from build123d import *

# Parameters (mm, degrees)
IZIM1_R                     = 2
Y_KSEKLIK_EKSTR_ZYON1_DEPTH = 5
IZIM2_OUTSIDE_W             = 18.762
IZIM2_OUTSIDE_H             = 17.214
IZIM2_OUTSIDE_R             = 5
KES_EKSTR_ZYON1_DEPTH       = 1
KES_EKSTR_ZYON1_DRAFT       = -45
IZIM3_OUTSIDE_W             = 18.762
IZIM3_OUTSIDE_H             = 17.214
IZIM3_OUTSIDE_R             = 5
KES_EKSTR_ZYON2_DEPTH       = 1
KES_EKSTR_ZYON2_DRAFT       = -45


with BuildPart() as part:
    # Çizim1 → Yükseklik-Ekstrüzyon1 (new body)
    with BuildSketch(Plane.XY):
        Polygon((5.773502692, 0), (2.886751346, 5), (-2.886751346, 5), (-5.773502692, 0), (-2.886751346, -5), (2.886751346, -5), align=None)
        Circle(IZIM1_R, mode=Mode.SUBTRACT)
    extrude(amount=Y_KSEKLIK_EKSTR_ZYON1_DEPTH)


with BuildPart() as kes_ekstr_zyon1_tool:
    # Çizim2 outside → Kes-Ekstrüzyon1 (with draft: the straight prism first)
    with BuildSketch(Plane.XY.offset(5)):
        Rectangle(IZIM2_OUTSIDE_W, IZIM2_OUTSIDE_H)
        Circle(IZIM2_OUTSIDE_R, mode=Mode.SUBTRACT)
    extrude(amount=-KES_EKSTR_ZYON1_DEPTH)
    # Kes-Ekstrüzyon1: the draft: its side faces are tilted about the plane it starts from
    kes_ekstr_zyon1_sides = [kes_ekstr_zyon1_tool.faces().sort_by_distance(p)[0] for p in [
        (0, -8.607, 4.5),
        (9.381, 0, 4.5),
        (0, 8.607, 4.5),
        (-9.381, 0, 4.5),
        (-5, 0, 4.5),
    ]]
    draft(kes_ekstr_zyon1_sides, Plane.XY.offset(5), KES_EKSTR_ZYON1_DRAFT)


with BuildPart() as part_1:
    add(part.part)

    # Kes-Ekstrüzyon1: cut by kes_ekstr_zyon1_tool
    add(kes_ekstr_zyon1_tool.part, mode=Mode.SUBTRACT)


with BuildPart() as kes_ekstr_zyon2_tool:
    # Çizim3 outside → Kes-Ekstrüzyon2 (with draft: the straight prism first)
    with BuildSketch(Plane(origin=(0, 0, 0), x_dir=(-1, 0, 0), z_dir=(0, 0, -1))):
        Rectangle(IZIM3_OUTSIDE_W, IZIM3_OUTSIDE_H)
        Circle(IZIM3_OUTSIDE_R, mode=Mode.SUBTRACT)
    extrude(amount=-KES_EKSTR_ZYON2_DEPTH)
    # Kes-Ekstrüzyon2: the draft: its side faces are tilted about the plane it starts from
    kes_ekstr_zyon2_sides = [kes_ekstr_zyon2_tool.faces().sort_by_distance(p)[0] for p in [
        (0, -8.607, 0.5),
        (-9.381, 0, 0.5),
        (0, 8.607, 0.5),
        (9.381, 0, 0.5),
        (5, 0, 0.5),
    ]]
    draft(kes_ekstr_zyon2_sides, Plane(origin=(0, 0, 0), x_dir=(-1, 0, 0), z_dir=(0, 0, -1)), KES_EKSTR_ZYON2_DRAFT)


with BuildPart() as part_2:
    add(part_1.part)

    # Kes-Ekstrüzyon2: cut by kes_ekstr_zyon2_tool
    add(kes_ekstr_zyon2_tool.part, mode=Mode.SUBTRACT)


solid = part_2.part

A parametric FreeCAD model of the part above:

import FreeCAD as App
import Part
import Sketcher

V = App.Vector
Q = App.Units.Quantity


def faces_at(feature, points):
    """Names of the faces that lie closest to the given points."""
    faces = feature.Shape.Faces
    near = lambda p: min(range(len(faces)), key=lambda i: faces[i].distToShape(Part.Vertex(*p))[0])
    return sorted({f"Face{near(p) + 1}" for p in points})

doc = App.newDocument("Part")
params = doc.addObject("Spreadsheet::Sheet", "Params")
for row, (alias, value) in enumerate([
    ("sketch1_diameter", "4 mm"),
    ("pad1_length", "5 mm"),
    ("sketch2_diameter", "10 mm"),
    ("pad2_length", "1 mm"),
    ("draft_angle", "45 deg"),
    ("sketch3_diameter", "10 mm"),
    ("pad3_length", "1 mm"),
    ("draft2_angle", "45 deg"),
], start=1):
    params.set(f"A{row}", alias)
    params.set(f"B{row}", "=" + value)
    params.setAlias(f"B{row}", alias)

body = doc.addObject("PartDesign::Body", "Body")

# Sketch on XY plane
sketch1 = body.newObject("Sketcher::SketchObject", "Sketch")
sketch1.AttachmentSupport = (doc.getObject("XY_Plane"), [""])
sketch1.MapMode = "FlatFace"
sketch1.addGeometry([
    Part.LineSegment(V(5.8, 0, 0), V(2.9, 5, 0)),  # 0
    Part.LineSegment(V(2.9, 5, 0), V(-2.9, 5, 0)),  # 1
    Part.LineSegment(V(-2.9, 5, 0), V(-5.8, 0, 0)),  # 2
    Part.LineSegment(V(-5.8, 0, 0), V(-2.9, -5, 0)),  # 3
    Part.LineSegment(V(-2.9, -5, 0), V(2.9, -5, 0)),  # 4
    Part.LineSegment(V(2.9, -5, 0), V(5.8, 0, 0)),  # 5
    Part.Circle(V(0, 0, 0), V(0, 0, 1), 2),  # 6
], False)
sketch1.addConstraint([
    Sketcher.Constraint("Coincident", 0, 2, 1, 1),
    Sketcher.Constraint("Coincident", 1, 2, 2, 1),
    Sketcher.Constraint("Coincident", 2, 2, 3, 1),
    Sketcher.Constraint("Coincident", 3, 2, 4, 1),
    Sketcher.Constraint("Coincident", 4, 2, 5, 1),
    Sketcher.Constraint("Coincident", 5, 2, 0, 1),
    Sketcher.Constraint("Horizontal", 1),
    Sketcher.Constraint("Horizontal", 4),
    Sketcher.Constraint("Coincident", 6, 3, -1, 1),
    Sketcher.Constraint("Symmetric", 0, 2, 3, 2, -1, 1),
    Sketcher.Constraint("Symmetric", 2, 2, 5, 2, -1, 1),
    Sketcher.Constraint("PointOnObject", 2, 2, -1),
    Sketcher.Constraint("Parallel", 2, 5),
    Sketcher.Constraint("Vertical", 1, 2, 3, 2),
    Sketcher.Constraint("Diameter", 6, Q("4 mm")),
    Sketcher.Constraint("Angle", 0, Q("120 deg")),
    Sketcher.Constraint("DistanceY", -1, 1, 0, 2, Q("5 mm")),
    Sketcher.Constraint("DistanceX", 1, 2, 1, 1, Q("5.773503 mm")),
])
sketch1.setExpression("Constraints[14]", "Params.sketch1_diameter")
pad1 = body.newObject("PartDesign::Pad", "Pad")
pad1.Profile = sketch1
pad1.setExpression("Length", "Params.pad1_length")
body2 = doc.addObject("PartDesign::Body", "Body001")

# Sketch on XY plane
sketch2 = body2.newObject("Sketcher::SketchObject", "Sketch001")
sketch2.AttachmentSupport = (doc.getObject("XY_Plane001"), [""])
sketch2.MapMode = "FlatFace"
sketch2.AttachmentOffset = App.Placement(V(0, 0, 5), App.Rotation())
sketch2.addGeometry([
    Part.LineSegment(V(-9, 9, 0), V(-9, -9, 0)),  # 0
    Part.LineSegment(V(-9, -9, 0), V(9, -9, 0)),  # 1
    Part.LineSegment(V(9, -9, 0), V(9, 9, 0)),  # 2
    Part.LineSegment(V(9, 9, 0), V(-9, 9, 0)),  # 3
    Part.Circle(V(0, 0, 0), V(0, 0, 1), 5),  # 4
], False)
sketch2.addConstraint([
    Sketcher.Constraint("Coincident", 0, 2, 1, 1),
    Sketcher.Constraint("Coincident", 1, 2, 2, 1),
    Sketcher.Constraint("Coincident", 2, 2, 3, 1),
    Sketcher.Constraint("Coincident", 3, 2, 0, 1),
    Sketcher.Constraint("Vertical", 0),
    Sketcher.Constraint("Horizontal", 1),
    Sketcher.Constraint("Vertical", 2),
    Sketcher.Constraint("Horizontal", 3),
    Sketcher.Constraint("Coincident", 4, 3, -1, 1),
    Sketcher.Constraint("Symmetric", 0, 2, 2, 2, -1, 1),
    Sketcher.Constraint("Diameter", 4, Q("10 mm")),
    Sketcher.Constraint("DistanceX", 1, 1, 1, 2, Q("18.762 mm")),
    Sketcher.Constraint("DistanceY", 0, 2, 0, 1, Q("17.214 mm")),
])
sketch2.setExpression("Constraints[10]", "Params.sketch2_diameter")
pad2 = body2.newObject("PartDesign::Pad", "Pad001")
pad2.Profile = sketch2
pad2.setExpression("Length", "Params.pad2_length")
pad2.Reversed = True
doc.recompute()

datumplane = body2.newObject("PartDesign::Plane", "DatumPlane")
datumplane.AttachmentSupport = (doc.getObject("XY_Plane001"), [""])
datumplane.MapMode = "FlatFace"
datumplane.AttachmentOffset = App.Placement(V(0, 0, 5), App.Rotation())
draft = body2.newObject("PartDesign::Draft", "Draft")
draft.Base = (pad2, faces_at(pad2, [
    (0, -8.607, 4.5),
    (9.381, 0, 4.5),
    (0, 8.607, 4.5),
    (-9.381, 0, 4.5),
    (-5, 0, 4.5),
]))
draft.NeutralPlane = (datumplane, [""])
draft.setExpression("Angle", "Params.draft_angle")
draft.Reversed = True
doc.recompute()

boolean = body.newObject("PartDesign::Boolean", "Boolean")
boolean.Type = "Cut"
boolean.addObjects([body2])
body3 = doc.addObject("PartDesign::Body", "Body002")

# Sketch on XY plane
sketch3 = body3.newObject("Sketcher::SketchObject", "Sketch002")
sketch3.AttachmentSupport = (doc.getObject("XY_Plane002"), [""])
sketch3.MapMode = "FlatFace"
sketch3.addGeometry([
    Part.LineSegment(V(9, 9, 0), V(9, -9, 0)),  # 0
    Part.LineSegment(V(9, -9, 0), V(-9, -9, 0)),  # 1
    Part.LineSegment(V(-9, -9, 0), V(-9, 9, 0)),  # 2
    Part.LineSegment(V(-9, 9, 0), V(9, 9, 0)),  # 3
    Part.Circle(V(0, 0, 0), V(0, 0, 1), 5),  # 4
], False)
sketch3.addConstraint([
    Sketcher.Constraint("Coincident", 0, 2, 1, 1),
    Sketcher.Constraint("Coincident", 1, 2, 2, 1),
    Sketcher.Constraint("Coincident", 2, 2, 3, 1),
    Sketcher.Constraint("Coincident", 3, 2, 0, 1),
    Sketcher.Constraint("Vertical", 0),
    Sketcher.Constraint("Horizontal", 1),
    Sketcher.Constraint("Vertical", 2),
    Sketcher.Constraint("Horizontal", 3),
    Sketcher.Constraint("Coincident", 4, 3, -1, 1),
    Sketcher.Constraint("Symmetric", 0, 2, 2, 2, -1, 1),
    Sketcher.Constraint("Diameter", 4, Q("10 mm")),
    Sketcher.Constraint("DistanceX", 1, 2, 1, 1, Q("18.762 mm")),
    Sketcher.Constraint("DistanceY", 0, 2, 0, 1, Q("17.214 mm")),
])
sketch3.setExpression("Constraints[10]", "Params.sketch3_diameter")
pad3 = body3.newObject("PartDesign::Pad", "Pad002")
pad3.Profile = sketch3
pad3.setExpression("Length", "Params.pad3_length")
doc.recompute()

draft2 = body3.newObject("PartDesign::Draft", "Draft001")
draft2.Base = (pad3, faces_at(pad3, [
    (0, -8.607, 0.5),
    (-9.381, 0, 0.5),
    (0, 8.607, 0.5),
    (9.381, 0, 0.5),
    (5, 0, 0.5),
]))
draft2.NeutralPlane = (doc.getObject("XY_Plane002"), [""])
draft2.setExpression("Angle", "Params.draft2_angle")
draft2.Reversed = False
doc.recompute()

boolean2 = body.newObject("PartDesign::Boolean", "Boolean001")
boolean2.Type = "Cut"
boolean2.addObjects([body3])

doc.recompute()
